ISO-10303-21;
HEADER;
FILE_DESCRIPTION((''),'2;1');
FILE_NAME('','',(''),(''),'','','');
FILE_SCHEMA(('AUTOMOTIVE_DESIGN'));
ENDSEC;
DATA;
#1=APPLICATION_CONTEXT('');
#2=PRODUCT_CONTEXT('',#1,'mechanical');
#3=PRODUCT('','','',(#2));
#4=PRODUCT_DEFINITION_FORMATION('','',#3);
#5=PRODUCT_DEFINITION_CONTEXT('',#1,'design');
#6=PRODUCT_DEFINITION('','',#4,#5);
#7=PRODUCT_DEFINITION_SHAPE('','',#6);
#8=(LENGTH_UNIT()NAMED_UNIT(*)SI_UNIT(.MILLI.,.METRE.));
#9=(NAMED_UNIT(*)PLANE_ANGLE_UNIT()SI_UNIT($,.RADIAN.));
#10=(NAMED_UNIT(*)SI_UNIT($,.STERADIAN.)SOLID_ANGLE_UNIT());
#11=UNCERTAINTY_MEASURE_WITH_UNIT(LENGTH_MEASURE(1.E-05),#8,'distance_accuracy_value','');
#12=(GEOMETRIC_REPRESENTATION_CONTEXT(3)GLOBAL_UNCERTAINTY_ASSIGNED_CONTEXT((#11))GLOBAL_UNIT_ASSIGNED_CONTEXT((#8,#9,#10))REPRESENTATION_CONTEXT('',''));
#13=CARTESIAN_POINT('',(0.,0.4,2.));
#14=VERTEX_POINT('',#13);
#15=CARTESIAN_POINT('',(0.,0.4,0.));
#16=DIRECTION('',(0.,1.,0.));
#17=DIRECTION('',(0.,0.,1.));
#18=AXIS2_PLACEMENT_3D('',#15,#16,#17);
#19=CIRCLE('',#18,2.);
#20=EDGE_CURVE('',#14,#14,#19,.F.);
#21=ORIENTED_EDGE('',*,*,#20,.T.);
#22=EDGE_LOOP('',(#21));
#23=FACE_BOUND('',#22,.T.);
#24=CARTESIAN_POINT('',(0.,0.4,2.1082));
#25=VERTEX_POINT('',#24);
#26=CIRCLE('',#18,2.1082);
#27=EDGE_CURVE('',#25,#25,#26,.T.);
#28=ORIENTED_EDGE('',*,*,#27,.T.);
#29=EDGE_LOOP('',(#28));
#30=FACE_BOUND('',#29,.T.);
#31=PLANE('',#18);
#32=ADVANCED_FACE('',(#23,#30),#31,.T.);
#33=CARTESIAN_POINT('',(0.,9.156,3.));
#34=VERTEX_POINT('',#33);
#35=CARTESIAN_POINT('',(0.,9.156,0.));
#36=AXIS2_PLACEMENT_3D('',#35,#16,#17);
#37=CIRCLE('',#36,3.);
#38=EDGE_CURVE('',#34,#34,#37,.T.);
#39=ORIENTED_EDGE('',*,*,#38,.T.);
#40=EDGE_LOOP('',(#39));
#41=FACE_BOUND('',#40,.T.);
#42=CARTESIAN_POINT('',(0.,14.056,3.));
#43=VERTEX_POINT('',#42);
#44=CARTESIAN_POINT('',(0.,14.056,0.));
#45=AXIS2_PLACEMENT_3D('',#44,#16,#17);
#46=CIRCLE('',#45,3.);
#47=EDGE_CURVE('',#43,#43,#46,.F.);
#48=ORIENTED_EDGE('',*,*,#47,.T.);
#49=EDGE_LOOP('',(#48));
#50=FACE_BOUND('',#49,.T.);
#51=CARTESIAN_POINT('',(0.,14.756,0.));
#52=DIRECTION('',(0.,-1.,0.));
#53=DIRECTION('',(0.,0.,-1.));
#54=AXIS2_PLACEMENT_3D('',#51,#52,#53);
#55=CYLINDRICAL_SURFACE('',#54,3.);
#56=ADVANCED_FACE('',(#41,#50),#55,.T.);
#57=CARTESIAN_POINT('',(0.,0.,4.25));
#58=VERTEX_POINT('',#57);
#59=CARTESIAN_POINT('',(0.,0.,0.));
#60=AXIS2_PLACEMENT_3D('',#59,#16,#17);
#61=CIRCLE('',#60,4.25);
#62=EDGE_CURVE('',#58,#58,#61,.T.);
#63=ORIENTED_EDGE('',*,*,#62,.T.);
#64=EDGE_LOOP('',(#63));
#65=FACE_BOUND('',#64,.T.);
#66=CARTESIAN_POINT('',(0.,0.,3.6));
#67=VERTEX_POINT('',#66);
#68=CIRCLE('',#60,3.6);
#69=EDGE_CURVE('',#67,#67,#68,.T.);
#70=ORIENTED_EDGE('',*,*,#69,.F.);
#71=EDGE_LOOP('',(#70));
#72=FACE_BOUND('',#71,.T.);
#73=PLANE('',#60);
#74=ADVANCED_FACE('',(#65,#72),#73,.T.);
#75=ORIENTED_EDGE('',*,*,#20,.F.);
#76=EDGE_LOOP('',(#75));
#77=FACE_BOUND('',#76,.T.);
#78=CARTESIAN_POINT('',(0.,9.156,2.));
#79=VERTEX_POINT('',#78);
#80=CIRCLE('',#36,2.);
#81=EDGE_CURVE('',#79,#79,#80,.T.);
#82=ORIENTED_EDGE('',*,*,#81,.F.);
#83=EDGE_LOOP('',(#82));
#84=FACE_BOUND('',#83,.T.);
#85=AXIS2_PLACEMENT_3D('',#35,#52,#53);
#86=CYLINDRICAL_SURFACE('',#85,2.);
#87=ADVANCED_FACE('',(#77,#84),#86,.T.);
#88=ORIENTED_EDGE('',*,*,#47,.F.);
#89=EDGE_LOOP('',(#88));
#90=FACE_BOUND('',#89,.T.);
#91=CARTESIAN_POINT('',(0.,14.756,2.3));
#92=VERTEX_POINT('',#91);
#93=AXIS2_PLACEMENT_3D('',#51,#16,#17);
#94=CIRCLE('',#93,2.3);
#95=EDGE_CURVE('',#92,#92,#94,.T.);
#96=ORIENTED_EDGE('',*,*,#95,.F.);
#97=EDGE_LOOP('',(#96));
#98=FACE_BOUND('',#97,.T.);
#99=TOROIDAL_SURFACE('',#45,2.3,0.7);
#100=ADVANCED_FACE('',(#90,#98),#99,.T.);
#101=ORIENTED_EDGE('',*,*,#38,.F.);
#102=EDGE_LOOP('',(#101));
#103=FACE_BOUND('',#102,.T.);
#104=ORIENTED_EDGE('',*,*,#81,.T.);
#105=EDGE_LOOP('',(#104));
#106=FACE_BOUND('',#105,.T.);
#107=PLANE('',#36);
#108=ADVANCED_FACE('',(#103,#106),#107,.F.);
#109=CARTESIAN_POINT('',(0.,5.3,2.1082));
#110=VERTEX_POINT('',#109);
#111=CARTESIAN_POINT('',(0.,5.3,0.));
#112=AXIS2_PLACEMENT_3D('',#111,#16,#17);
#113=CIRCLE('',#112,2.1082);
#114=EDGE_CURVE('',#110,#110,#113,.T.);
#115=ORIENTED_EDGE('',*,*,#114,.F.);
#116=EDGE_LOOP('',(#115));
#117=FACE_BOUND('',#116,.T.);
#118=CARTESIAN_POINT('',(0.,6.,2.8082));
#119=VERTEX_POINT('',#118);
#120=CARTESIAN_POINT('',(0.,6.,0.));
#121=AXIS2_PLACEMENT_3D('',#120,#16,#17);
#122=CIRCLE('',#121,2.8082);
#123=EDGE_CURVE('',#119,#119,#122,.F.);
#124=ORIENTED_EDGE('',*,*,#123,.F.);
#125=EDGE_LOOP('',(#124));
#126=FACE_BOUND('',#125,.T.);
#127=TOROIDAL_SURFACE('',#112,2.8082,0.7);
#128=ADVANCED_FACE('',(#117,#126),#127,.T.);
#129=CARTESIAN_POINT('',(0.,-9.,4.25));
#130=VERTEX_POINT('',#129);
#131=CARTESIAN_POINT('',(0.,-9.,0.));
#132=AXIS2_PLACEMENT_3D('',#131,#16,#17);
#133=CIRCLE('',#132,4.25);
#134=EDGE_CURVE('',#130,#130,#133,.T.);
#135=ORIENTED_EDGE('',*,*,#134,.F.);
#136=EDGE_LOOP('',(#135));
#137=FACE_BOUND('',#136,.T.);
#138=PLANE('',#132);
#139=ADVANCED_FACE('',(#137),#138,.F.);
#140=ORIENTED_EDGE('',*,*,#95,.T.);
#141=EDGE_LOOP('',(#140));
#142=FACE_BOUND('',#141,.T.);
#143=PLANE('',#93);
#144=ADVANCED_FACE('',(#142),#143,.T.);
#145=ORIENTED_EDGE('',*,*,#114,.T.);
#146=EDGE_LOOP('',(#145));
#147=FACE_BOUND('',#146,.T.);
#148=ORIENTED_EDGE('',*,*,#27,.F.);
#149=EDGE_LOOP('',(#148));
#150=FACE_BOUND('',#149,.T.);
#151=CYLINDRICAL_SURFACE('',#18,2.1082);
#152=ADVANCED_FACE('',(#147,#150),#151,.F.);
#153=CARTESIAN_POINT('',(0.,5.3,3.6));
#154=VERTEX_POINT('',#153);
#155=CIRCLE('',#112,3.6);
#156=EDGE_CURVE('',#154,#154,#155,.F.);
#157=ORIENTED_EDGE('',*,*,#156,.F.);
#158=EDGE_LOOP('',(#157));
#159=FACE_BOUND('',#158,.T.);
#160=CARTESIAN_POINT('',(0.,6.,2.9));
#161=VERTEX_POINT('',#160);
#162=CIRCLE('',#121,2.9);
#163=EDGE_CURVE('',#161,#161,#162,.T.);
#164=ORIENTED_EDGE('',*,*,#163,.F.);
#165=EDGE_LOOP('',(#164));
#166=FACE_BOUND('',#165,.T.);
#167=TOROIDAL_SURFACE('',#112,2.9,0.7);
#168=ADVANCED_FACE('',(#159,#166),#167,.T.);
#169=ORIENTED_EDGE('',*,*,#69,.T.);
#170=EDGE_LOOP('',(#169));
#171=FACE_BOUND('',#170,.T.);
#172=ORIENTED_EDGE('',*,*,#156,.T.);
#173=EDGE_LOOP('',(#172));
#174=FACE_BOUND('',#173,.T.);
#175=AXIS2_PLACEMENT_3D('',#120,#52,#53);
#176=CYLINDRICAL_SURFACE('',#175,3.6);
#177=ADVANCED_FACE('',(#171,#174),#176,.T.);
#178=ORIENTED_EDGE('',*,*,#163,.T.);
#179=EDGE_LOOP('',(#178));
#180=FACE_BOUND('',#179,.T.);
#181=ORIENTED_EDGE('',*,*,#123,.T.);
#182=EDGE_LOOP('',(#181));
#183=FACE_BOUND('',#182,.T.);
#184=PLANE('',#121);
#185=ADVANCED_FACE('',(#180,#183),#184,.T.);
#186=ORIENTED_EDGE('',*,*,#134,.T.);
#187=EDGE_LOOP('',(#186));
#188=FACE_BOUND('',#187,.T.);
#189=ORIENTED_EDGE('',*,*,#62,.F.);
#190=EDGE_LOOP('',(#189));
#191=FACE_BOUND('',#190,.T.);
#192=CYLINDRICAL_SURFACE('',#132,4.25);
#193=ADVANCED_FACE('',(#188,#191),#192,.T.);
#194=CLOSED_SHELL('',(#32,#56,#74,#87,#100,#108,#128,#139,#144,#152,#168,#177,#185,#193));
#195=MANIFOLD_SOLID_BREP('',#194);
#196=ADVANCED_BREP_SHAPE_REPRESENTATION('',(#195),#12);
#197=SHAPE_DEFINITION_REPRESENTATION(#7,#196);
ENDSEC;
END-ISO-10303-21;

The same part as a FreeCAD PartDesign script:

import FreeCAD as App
import Part
import Sketcher


def edges_at(feature, points):
    """Names of the edges that pass closest to the given points."""
    edges = feature.Shape.Edges
    near = lambda p: min(range(len(edges)), key=lambda i: edges[i].distToShape(Part.Vertex(*p))[0])
    return sorted({f"Edge{near(p) + 1}" for p in points})

doc = App.newDocument("Part")
body = doc.addObject("PartDesign::Body", "Body")

sketch1 = doc.addObject("Sketcher::SketchObject", "Sketch")
body.addObject(sketch1)
sketch1.AttachmentSupport = (doc.XZ_Plane, [""])
sketch1.MapMode = "FlatFace"
sketch1.addGeometry(Part.Circle(App.Vector(0, 0, 0), App.Vector(0, 0, 1), 3.6), False)
sketch1.addConstraint([
    Sketcher.Constraint("Coincident", 0, 3, -1, 1),
    Sketcher.Constraint("Diameter", 0, 7.2),
])
pad1 = doc.addObject("PartDesign::Pad", "Pad")
body.addObject(pad1)
pad1.Profile = sketch1
pad1.Length = 6
pad1.Reversed = True

sketch2 = doc.addObject("Sketcher::SketchObject", "Sketch001")
body.addObject(sketch2)
sketch2.AttachmentSupport = (doc.XZ_Plane, [""])
sketch2.MapMode = "FlatFace"
sketch2.addGeometry(Part.Circle(App.Vector(0, 0, 0), App.Vector(0, 0, 1), 4.3), False)
sketch2.addConstraint([
    Sketcher.Constraint("Coincident", 0, 3, -1, 1),
    Sketcher.Constraint("Diameter", 0, 8.5),
])
pad2 = doc.addObject("PartDesign::Pad", "Pad001")
body.addObject(pad2)
pad2.Profile = sketch2
pad2.Length = 9

sketch3 = doc.addObject("Sketcher::SketchObject", "Sketch002")
body.addObject(sketch3)
sketch3.AttachmentSupport = (doc.XZ_Plane, [""])
sketch3.MapMode = "FlatFace"
sketch3.AttachmentOffset = App.Placement(App.Vector(0, 0, -6), App.Rotation())
sketch3.addGeometry(Part.Circle(App.Vector(0, 0, 0), App.Vector(0, 0, 1), 2.1), False)
sketch3.addConstraint([
    Sketcher.Constraint("Coincident", 0, 3, -1, 1),
    Sketcher.Constraint("Diameter", 0, 4.2164),
])
pocket1 = doc.addObject("PartDesign::Pocket", "Pocket")
body.addObject(pocket1)
pocket1.Profile = sketch3
pocket1.Length = 5.6
pocket1.Reversed = True

sketch4 = doc.addObject("Sketcher::SketchObject", "Sketch003")
body.addObject(sketch4)
sketch4.AttachmentSupport = (doc.XZ_Plane, [""])
sketch4.MapMode = "FlatFace"
sketch4.addGeometry(Part.Circle(App.Vector(0, 0, 0), App.Vector(0, 0, 1), 2), False)
sketch4.addConstraint([
    Sketcher.Constraint("Coincident", 0, 3, -1, 1),
    Sketcher.Constraint("Diameter", 0, 4.0),
])
pad3 = doc.addObject("PartDesign::Pad", "Pad002")
body.addObject(pad3)
pad3.Profile = sketch4
pad3.Length = 9.156
pad3.Reversed = True
doc.recompute()

fillet = doc.addObject("PartDesign::Fillet", "Fillet")
body.addObject(fillet)
fillet.Base = (pad3, edges_at(pad3, [(0, 6, -2.108), (0, 6, -3.6)]))
fillet.Radius = 0.7

sketch5 = doc.addObject("Sketcher::SketchObject", "Sketch004")
body.addObject(sketch5)
sketch5.AttachmentSupport = (doc.XZ_Plane, [""])
sketch5.MapMode = "FlatFace"
sketch5.AttachmentOffset = App.Placement(App.Vector(0, 0, -9.156), App.Rotation())
sketch5.addGeometry(Part.Circle(App.Vector(0, 0, 0), App.Vector(0, 0, 1), 3), False)
sketch5.addConstraint([
    Sketcher.Constraint("Coincident", 0, 3, -1, 1),
    Sketcher.Constraint("Diameter", 0, 6.0),
])
pad4 = doc.addObject("PartDesign::Pad", "Pad003")
body.addObject(pad4)
pad4.Profile = sketch5
pad4.Length = 5.6
pad4.Reversed = True
doc.recompute()

fillet2 = doc.addObject("PartDesign::Fillet", "Fillet001")
body.addObject(fillet2)
fillet2.Base = (pad4, edges_at(pad4, [(0, 14.756, -3)]))
fillet2.Radius = 0.7

doc.recompute()
